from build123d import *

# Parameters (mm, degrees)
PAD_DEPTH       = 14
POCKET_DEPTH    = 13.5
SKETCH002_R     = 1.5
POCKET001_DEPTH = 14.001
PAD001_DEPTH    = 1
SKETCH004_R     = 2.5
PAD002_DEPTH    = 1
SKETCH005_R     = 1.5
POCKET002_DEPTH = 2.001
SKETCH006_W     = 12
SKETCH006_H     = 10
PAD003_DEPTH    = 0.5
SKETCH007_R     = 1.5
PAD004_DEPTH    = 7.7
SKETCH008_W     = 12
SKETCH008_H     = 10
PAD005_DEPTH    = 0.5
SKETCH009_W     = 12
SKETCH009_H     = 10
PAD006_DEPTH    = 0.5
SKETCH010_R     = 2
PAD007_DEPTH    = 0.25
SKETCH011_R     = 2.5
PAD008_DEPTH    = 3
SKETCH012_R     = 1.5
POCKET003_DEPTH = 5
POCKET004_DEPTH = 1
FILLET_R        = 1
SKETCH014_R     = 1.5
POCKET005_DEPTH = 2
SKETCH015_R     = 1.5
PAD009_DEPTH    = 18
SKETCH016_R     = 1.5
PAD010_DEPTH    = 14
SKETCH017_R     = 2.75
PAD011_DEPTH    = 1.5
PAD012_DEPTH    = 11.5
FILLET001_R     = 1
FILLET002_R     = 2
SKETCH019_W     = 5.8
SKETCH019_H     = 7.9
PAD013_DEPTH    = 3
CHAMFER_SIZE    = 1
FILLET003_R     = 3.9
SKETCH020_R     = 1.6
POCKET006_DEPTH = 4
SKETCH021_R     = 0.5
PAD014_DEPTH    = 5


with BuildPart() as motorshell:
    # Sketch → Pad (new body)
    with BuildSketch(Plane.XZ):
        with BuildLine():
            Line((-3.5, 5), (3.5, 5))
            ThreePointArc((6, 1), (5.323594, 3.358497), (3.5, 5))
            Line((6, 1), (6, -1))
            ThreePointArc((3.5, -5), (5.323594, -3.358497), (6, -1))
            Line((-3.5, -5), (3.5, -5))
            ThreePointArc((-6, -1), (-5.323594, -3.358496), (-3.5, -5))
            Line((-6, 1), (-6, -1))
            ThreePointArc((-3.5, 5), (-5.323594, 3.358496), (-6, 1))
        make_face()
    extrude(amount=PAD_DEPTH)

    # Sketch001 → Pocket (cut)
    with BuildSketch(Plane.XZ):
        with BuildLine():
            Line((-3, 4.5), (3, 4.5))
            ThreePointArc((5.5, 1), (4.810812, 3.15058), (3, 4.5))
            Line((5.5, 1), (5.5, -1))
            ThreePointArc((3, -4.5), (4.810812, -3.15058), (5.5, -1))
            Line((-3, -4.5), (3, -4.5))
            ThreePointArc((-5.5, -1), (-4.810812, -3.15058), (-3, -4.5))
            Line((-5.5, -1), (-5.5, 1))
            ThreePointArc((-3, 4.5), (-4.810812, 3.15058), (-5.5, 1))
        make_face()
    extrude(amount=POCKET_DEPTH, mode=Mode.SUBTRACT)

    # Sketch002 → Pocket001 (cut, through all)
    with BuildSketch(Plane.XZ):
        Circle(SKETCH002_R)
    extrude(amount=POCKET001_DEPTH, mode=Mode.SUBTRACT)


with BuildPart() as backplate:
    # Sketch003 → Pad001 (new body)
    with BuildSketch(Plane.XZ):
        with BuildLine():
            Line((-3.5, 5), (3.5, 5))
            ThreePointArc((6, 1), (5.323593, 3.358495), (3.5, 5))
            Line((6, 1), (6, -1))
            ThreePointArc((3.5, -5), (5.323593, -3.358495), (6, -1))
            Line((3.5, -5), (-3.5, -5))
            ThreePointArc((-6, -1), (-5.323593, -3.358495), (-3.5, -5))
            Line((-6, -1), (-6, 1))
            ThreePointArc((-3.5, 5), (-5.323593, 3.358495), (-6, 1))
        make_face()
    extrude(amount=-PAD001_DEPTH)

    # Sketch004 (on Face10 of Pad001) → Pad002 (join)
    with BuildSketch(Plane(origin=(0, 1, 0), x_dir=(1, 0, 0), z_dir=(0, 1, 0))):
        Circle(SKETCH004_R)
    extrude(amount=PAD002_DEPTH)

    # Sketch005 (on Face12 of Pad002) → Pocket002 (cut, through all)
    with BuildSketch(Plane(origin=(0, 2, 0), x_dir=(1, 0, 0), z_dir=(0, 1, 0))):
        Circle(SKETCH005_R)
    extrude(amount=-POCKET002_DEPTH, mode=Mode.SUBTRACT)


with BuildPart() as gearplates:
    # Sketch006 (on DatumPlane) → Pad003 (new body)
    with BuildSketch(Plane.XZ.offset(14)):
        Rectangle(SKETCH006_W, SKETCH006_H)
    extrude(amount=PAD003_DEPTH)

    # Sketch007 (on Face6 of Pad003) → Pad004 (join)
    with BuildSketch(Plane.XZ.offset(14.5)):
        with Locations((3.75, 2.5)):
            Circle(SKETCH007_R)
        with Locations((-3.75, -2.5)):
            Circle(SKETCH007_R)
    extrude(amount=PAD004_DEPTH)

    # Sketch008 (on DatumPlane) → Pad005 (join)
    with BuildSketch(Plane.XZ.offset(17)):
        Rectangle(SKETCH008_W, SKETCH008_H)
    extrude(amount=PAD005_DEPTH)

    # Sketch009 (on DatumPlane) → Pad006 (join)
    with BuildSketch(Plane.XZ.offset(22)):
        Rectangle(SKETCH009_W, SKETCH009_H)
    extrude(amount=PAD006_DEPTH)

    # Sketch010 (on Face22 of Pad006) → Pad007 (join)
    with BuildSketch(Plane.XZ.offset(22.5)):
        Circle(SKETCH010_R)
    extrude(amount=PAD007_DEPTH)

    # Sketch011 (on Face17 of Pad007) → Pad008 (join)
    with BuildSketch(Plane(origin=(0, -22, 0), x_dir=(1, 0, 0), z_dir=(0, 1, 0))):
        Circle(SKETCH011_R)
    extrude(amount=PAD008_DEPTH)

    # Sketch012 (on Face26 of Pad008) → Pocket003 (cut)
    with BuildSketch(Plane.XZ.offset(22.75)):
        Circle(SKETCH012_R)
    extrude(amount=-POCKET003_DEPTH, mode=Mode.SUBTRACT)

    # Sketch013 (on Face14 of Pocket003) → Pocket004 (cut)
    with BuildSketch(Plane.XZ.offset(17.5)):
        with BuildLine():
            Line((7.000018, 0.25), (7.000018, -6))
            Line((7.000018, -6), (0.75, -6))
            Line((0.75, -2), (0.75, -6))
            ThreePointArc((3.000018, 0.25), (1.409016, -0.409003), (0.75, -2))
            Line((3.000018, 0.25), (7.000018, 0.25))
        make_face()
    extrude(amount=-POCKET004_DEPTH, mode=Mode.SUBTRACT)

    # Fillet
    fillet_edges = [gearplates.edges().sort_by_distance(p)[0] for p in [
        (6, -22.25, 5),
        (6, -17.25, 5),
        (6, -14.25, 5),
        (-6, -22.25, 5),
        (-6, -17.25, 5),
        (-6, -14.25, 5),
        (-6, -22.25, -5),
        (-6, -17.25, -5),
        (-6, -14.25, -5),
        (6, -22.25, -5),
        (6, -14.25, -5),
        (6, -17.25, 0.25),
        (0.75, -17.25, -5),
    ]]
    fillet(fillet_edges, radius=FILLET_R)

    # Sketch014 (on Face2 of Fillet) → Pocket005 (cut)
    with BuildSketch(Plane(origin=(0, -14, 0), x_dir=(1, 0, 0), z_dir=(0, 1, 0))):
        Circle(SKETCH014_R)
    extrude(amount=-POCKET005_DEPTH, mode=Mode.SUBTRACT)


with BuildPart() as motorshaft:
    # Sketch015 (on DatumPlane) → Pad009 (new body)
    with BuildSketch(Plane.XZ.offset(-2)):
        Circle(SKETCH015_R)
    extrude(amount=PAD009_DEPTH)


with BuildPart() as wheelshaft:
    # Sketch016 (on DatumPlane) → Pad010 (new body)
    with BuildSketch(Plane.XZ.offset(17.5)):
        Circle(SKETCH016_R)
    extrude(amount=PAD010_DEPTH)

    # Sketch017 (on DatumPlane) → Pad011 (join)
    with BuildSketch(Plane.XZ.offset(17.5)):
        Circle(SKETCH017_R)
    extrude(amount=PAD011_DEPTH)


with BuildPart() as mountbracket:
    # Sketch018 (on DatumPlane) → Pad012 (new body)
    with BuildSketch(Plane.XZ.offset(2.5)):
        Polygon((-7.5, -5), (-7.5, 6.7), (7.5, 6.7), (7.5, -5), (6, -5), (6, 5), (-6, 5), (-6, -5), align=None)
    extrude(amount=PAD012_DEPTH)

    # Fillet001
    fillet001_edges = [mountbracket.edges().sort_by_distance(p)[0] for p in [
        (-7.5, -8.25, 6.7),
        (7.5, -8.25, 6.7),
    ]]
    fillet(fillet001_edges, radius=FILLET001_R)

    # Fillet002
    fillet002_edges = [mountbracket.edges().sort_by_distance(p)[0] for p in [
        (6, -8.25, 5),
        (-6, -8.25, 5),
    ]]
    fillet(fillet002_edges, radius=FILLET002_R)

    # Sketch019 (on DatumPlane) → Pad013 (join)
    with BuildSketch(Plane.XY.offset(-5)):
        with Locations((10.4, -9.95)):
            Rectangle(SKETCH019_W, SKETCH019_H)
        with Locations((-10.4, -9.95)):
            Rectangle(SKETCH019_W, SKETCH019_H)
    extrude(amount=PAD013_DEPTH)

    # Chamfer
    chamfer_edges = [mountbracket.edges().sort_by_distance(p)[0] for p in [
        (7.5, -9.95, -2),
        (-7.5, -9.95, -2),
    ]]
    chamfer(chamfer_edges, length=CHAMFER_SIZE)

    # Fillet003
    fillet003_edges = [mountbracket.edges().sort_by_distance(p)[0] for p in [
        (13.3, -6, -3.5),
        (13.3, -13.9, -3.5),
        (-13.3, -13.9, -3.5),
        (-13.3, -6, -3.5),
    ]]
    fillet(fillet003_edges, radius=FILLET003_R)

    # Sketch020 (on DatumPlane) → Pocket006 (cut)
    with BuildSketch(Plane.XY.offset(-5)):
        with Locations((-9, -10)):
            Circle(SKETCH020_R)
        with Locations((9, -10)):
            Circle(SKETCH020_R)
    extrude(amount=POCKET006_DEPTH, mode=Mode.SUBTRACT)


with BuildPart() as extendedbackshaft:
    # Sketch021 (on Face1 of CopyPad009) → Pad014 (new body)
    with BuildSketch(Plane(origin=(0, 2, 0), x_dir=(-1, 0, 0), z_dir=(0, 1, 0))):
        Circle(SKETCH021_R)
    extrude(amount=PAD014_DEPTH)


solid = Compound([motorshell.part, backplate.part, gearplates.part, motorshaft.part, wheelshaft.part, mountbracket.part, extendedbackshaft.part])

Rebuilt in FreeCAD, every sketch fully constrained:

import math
import FreeCAD as App
import Part
import Sketcher
Q = App.Units.Quantity


def edges_at(feature, points):
    """Names of the edges that pass closest to the given points."""
    edges = feature.Shape.Edges
    near = lambda p: min(range(len(edges)), key=lambda i: edges[i].distToShape(Part.Vertex(*p))[0])
    return sorted({f"Edge{near(p) + 1}" for p in points})


def add_polygon(sketch, points):
    """Adds a closed chain of lines whose ends are joined by coincident constraints."""
    first, n = sketch.GeometryCount, len(points)
    for a, b in zip(points, points[1:] + points[:1]):
        sketch.addGeometry(Part.LineSegment(App.Vector(*a, 0), App.Vector(*b, 0)), False)
    for i in range(n):
        sketch.addConstraint(Sketcher.Constraint("Coincident", first + i, 2, first + (i + 1) % n, 1))

doc = App.newDocument("Part")
params = doc.addObject("Spreadsheet::Sheet", "Params")
for row, (alias, value) in enumerate([
    ("sketch1_width", "7 mm"),
    ("sketch1_height", "2 mm"),
    ("pad1_length", "14 mm"),
    ("sketch2_width", "6 mm"),
    ("sketch2_height", "2 mm"),
    ("pocket1_length", "13.5 mm"),
    ("sketch3_diameter", "3 mm"),
    ("sketch4_width", "7 mm"),
    ("sketch4_height", "2 mm"),
    ("sketch4_radius", "4.449998 mm"),
    ("pad2_length", "1 mm"),
    ("sketch5_diameter", "5 mm"),
    ("pad3_length", "1 mm"),
    ("sketch6_diameter", "3 mm"),
    ("sketch7_width", "12 mm"),
    ("sketch7_height", "10 mm"),
    ("pad4_length", "0.5 mm"),
    ("sketch8_diameter", "3 mm"),
    ("pad5_length", "7.7 mm"),
    ("sketch9_width", "12 mm"),
    ("sketch9_height", "10 mm"),
    ("pad6_length", "0.5 mm"),
    ("sketch10_width", "12 mm"),
    ("sketch10_height", "10 mm"),
    ("pad7_length", "0.5 mm"),
    ("sketch11_diameter", "4 mm"),
    ("pad8_length", "0.25 mm"),
    ("sketch12_diameter", "5 mm"),
    ("pad9_length", "3 mm"),
    ("sketch13_diameter", "3 mm"),
    ("pocket4_length", "5 mm"),
    ("sketch14_width", "4 mm"),
    ("sketch14_radius", "2.249999 mm"),
    ("pocket5_length", "1 mm"),
    ("fillet_radius", "1 mm"),
    ("sketch15_diameter", "3 mm"),
    ("pocket6_length", "2 mm"),
    ("sketch16_diameter", "3 mm"),
    ("pad10_length", "18 mm"),
    ("sketch17_diameter", "3 mm"),
    ("pad11_length", "14 mm"),
    ("sketch18_diameter", "5.5 mm"),
    ("pad12_length", "1.5 mm"),
    ("sketch19_width", "12 mm"),
    ("sketch19_width2", "15 mm"),
    ("sketch19_height", "10 mm"),
    ("sketch19_height2", "11.7 mm"),
    ("pad13_length", "11.5 mm"),
    ("fillet2_radius", "1 mm"),
    ("fillet3_radius", "2 mm"),
    ("sketch20_width", "5.8 mm"),
    ("sketch20_height", "7.9 mm"),
    ("pad14_length", "3 mm"),
    ("chamfer_size", "1 mm"),
    ("fillet4_radius", "3.9 mm"),
    ("sketch21_diameter", "3.2 mm"),
    ("pocket7_length", "4 mm"),
    ("sketch22_diameter", "1 mm"),
    ("pad15_length", "5 mm"),
], start=1):
    params.set(f"A{row}", alias)
    params.set(f"B{row}", "=" + value)
    params.setAlias(f"B{row}", alias)

body = doc.addObject("PartDesign::Body", "Body")

# Sketch on XZ plane
sketch1 = doc.addObject("Sketcher::SketchObject", "Sketch")
body.addObject(sketch1)
sketch1.AttachmentSupport = (doc.XZ_Plane, [""])
sketch1.MapMode = "FlatFace"
sketch1.addGeometry([
    Part.LineSegment(App.Vector(3.5, 5, 0), App.Vector(-3.5, 5, 0)),  # 0
    Part.ArcOfCircle(Part.Circle(App.Vector(-1.550009, 1.000006, 0), App.Vector(0, 0, 1), 4.449991), math.radians(115.989158), math.radians(180.000076)),  # 1
    Part.LineSegment(App.Vector(-6, 1, 0), App.Vector(-6, -1, 0)),  # 2
    Part.ArcOfCircle(Part.Circle(App.Vector(-1.550009, -1.000006, 0), App.Vector(0, 0, 1), 4.449991), math.radians(179.999924), math.radians(244.010842)),  # 3
    Part.LineSegment(App.Vector(-3.5, -5, 0), App.Vector(3.5, -5, 0)),  # 4
    Part.ArcOfCircle(Part.Circle(App.Vector(1.550012, -1.000008, 0), App.Vector(0, 0, 1), 4.449988), math.radians(-64.010866), math.radians(0.0001)),  # 5
    Part.LineSegment(App.Vector(6, -1, 0), App.Vector(6, 1, 0)),  # 6
    Part.ArcOfCircle(Part.Circle(App.Vector(1.550012, 1.000008, 0), App.Vector(0, 0, 1), 4.449988), math.radians(-0.0001), math.radians(64.010866)),  # 7
], False)
sketch1.addConstraint([
    Sketcher.Constraint("Coincident", 0, 2, 1, 1),
    Sketcher.Constraint("Tangent", 1, 2, 2, 1),
    Sketcher.Constraint("Tangent", 2, 2, 3, 1),
    Sketcher.Constraint("Coincident", 3, 2, 4, 1),
    Sketcher.Constraint("Coincident", 4, 2, 5, 1),
    Sketcher.Constraint("Tangent", 5, 2, 6, 1),
    Sketcher.Constraint("Tangent", 6, 2, 7, 1),
    Sketcher.Constraint("Coincident", 7, 2, 0, 1),
    Sketcher.Constraint("Horizontal", 0),
    Sketcher.Constraint("Vertical", 2),
    Sketcher.Constraint("Horizontal", 4),
    Sketcher.Constraint("Vertical", 6),
    Sketcher.Constraint("Equal", 1, 3),
    Sketcher.Constraint("Equal", 5, 7),
    Sketcher.Constraint("Symmetric", 1, 3, 5, 3, -1, 1),
    Sketcher.Constraint("Symmetric", 0, 2, 4, 2, -1, 1),
    Sketcher.Constraint("Horizontal", 3, 3, 5, 3),
    Sketcher.Constraint("Horizontal", 1, 3, 7, 3),
    Sketcher.Constraint("DistanceX", 0, 2, 0, 1, Q("7 mm")),
    Sketcher.Constraint("DistanceY", 2, 2, 2, 1, Q("2 mm")),
    Sketcher.Constraint("DistanceY", -1, 1, 0, 2, Q("5 mm")),
    Sketcher.Constraint("DistanceX", 1, 2, -1, 1, Q("6 mm")),
])
sketch1.setExpression("Constraints[18]", "Params.sketch1_width")
sketch1.setExpression("Constraints[19]", "Params.sketch1_height")
pad1 = doc.addObject("PartDesign::Pad", "Pad")
body.addObject(pad1)
pad1.Profile = sketch1
pad1.setExpression("Length", "Params.pad1_length")

# Sketch on XZ plane
sketch2 = doc.addObject("Sketcher::SketchObject", "Sketch001")
body.addObject(sketch2)
sketch2.AttachmentSupport = (doc.XZ_Plane, [""])
sketch2.MapMode = "FlatFace"
sketch2.addGeometry([
    Part.LineSegment(App.Vector(3, 4.5, 0), App.Vector(-3, 4.5, 0)),  # 0
    Part.ArcOfCircle(Part.Circle(App.Vector(-1.79999, 0.999993, 0), App.Vector(0, 0, 1), 3.70001), math.radians(108.924754), math.radians(179.999891)),  # 1
    Part.LineSegment(App.Vector(-5.5, 1, 0), App.Vector(-5.5, -1, 0)),  # 2
    Part.ArcOfCircle(Part.Circle(App.Vector(-1.79999, -0.999993, 0), App.Vector(0, 0, 1), 3.70001), math.radians(-179.999891), math.radians(-108.924754)),  # 3
    Part.LineSegment(App.Vector(-3, -4.5, 0), App.Vector(3, -4.5, 0)),  # 4
    Part.ArcOfCircle(Part.Circle(App.Vector(1.79999, -0.999993, 0), App.Vector(0, 0, 1), 3.70001), math.radians(-71.075246), math.radians(-0.000109)),  # 5
    Part.LineSegment(App.Vector(5.5, -1, 0), App.Vector(5.5, 1, 0)),  # 6
    Part.ArcOfCircle(Part.Circle(App.Vector(1.79999, 0.999993, 0), App.Vector(0, 0, 1), 3.70001), math.radians(0.000109), math.radians(71.075246)),  # 7
], False)
sketch2.addConstraint([
    Sketcher.Constraint("Coincident", 0, 2, 1, 1),
    Sketcher.Constraint("Tangent", 1, 2, 2, 1),
    Sketcher.Constraint("Tangent", 2, 2, 3, 1),
    Sketcher.Constraint("Coincident", 3, 2, 4, 1),
    Sketcher.Constraint("Coincident", 4, 2, 5, 1),
    Sketcher.Constraint("Tangent", 5, 2, 6, 1),
    Sketcher.Constraint("Tangent", 6, 2, 7, 1),
    Sketcher.Constraint("Coincident", 7, 2, 0, 1),
    Sketcher.Constraint("Horizontal", 0),
    Sketcher.Constraint("Vertical", 2),
    Sketcher.Constraint("Horizontal", 4),
    Sketcher.Constraint("Vertical", 6),
    Sketcher.Constraint("Equal", 1, 3),
    Sketcher.Constraint("Equal", 3, 5),
    Sketcher.Constraint("Equal", 5, 7),
    Sketcher.Constraint("Symmetric", 1, 3, 5, 3, -1, 1),
    Sketcher.Constraint("Symmetric", 3, 2, 7, 2, -1, 1),
    Sketcher.Constraint("Horizontal", 3, 3, 5, 3),
    Sketcher.Constraint("DistanceX", 0, 2, 0, 1, Q("6 mm")),
    Sketcher.Constraint("DistanceY", 2, 2, 2, 1, Q("2 mm")),
    Sketcher.Constraint("DistanceY", -1, 1, 0, 2, Q("4.5 mm")),
    Sketcher.Constraint("DistanceX", 1, 2, -1, 1, Q("5.5 mm")),
])
sketch2.setExpression("Constraints[18]", "Params.sketch2_width")
sketch2.setExpression("Constraints[19]", "Params.sketch2_height")
pocket1 = doc.addObject("PartDesign::Pocket", "Pocket")
body.addObject(pocket1)
pocket1.Profile = sketch2
pocket1.setExpression("Length", "Params.pocket1_length")
pocket1.Reversed = True

# Sketch on XZ plane
sketch3 = doc.addObject("Sketcher::SketchObject", "Sketch002")
body.addObject(sketch3)
sketch3.AttachmentSupport = (doc.XZ_Plane, [""])
sketch3.MapMode = "FlatFace"
sketch3.addGeometry(Part.Circle(App.Vector(0, 0, 0), App.Vector(0, 0, 1), 1.5), False)
sketch3.addConstraint([
    Sketcher.Constraint("Coincident", 0, 3, -1, 1),
    Sketcher.Constraint("Diameter", 0, Q("3 mm")),
])
sketch3.setExpression("Constraints[1]", "Params.sketch3_diameter")
pocket2 = doc.addObject("PartDesign::Pocket", "Pocket001")
body.addObject(pocket2)
pocket2.Profile = sketch3
pocket2.Type = "ThroughAll"
pocket2.Reversed = True
body2 = doc.addObject("PartDesign::Body", "Body001")

# Sketch on XZ plane
sketch4 = doc.addObject("Sketcher::SketchObject", "Sketch003")
body2.addObject(sketch4)
sketch4.AttachmentSupport = (doc.getObject("XZ_Plane001"), [""])
sketch4.MapMode = "FlatFace"
sketch4.addGeometry([
    Part.LineSegment(App.Vector(3.5, 5, 0), App.Vector(-3.5, 5, 0)),  # 0
    Part.ArcOfCircle(Part.Circle(App.Vector(-1.550002, 1.000001, 0), App.Vector(0, 0, 1), 4.449998), math.radians(115.989219), math.radians(180.000014)),  # 1
    Part.LineSegment(App.Vector(-6, 1, 0), App.Vector(-6, -1, 0)),  # 2
    Part.ArcOfCircle(Part.Circle(App.Vector(-1.550002, -1.000001, 0), App.Vector(0, 0, 1), 4.449998), math.radians(179.999986), math.radians(244.010781)),  # 3
    Part.LineSegment(App.Vector(-3.5, -5, 0), App.Vector(3.5, -5, 0)),  # 4
    Part.ArcOfCircle(Part.Circle(App.Vector(1.550002, -1.000001, 0), App.Vector(0, 0, 1), 4.449998), math.radians(-64.010781), math.radians(0.000014)),  # 5
    Part.LineSegment(App.Vector(6, -1, 0), App.Vector(6, 1, 0)),  # 6
    Part.ArcOfCircle(Part.Circle(App.Vector(1.550002, 1.000001, 0), App.Vector(0, 0, 1), 4.449998), math.radians(-0.000014), math.radians(64.010781)),  # 7
], False)
sketch4.addConstraint([
    Sketcher.Constraint("Coincident", 0, 2, 1, 1),
    Sketcher.Constraint("Tangent", 1, 2, 2, 1),
    Sketcher.Constraint("Tangent", 2, 2, 3, 1),
    Sketcher.Constraint("Coincident", 3, 2, 4, 1),
    Sketcher.Constraint("Coincident", 4, 2, 5, 1),
    Sketcher.Constraint("Tangent", 5, 2, 6, 1),
    Sketcher.Constraint("Tangent", 6, 2, 7, 1),
    Sketcher.Constraint("Coincident", 7, 2, 0, 1),
    Sketcher.Constraint("Horizontal", 0),
    Sketcher.Constraint("Vertical", 2),
    Sketcher.Constraint("Horizontal", 4),
    Sketcher.Constraint("Vertical", 6),
    Sketcher.Constraint("Equal", 1, 3),
    Sketcher.Constraint("Equal", 3, 5),
    Sketcher.Constraint("Equal", 5, 7),
    Sketcher.Constraint("Symmetric", 1, 3, 5, 3, -1, 1),
    Sketcher.Constraint("Symmetric", 3, 2, 7, 2, -1, 1),
    Sketcher.Constraint("Horizontal", 3, 3, 5, 3),
    Sketcher.Constraint("DistanceX", 0, 2, 0, 1, Q("7 mm")),
    Sketcher.Constraint("DistanceY", 2, 2, 2, 1, Q("2 mm")),
    Sketcher.Constraint("Radius", 1, Q("4.449998 mm")),
    Sketcher.Constraint("DistanceY", -1, 1, 0, 2, Q("5 mm")),
])
sketch4.setExpression("Constraints[18]", "Params.sketch4_width")
sketch4.setExpression("Constraints[19]", "Params.sketch4_height")
sketch4.setExpression("Constraints[20]", "Params.sketch4_radius")
pad2 = doc.addObject("PartDesign::Pad", "Pad001")
body2.addObject(pad2)
pad2.Profile = sketch4
pad2.setExpression("Length", "Params.pad2_length")
pad2.Reversed = True

# Sketch on XZ plane
sketch5 = doc.addObject("Sketcher::SketchObject", "Sketch004")
body2.addObject(sketch5)
sketch5.AttachmentSupport = (doc.getObject("XZ_Plane001"), [""])
sketch5.MapMode = "FlatFace"
sketch5.AttachmentOffset = App.Placement(App.Vector(0, 0, -1), App.Rotation())
sketch5.addGeometry(Part.Circle(App.Vector(0, 0, 0), App.Vector(0, 0, 1), 2.5), False)
sketch5.addConstraint([
    Sketcher.Constraint("Coincident", 0, 3, -1, 1),
    Sketcher.Constraint("Diameter", 0, Q("5 mm")),
])
sketch5.setExpression("Constraints[1]", "Params.sketch5_diameter")
pad3 = doc.addObject("PartDesign::Pad", "Pad002")
body2.addObject(pad3)
pad3.Profile = sketch5
pad3.setExpression("Length", "Params.pad3_length")
pad3.Reversed = True

# Sketch on XZ plane
sketch6 = doc.addObject("Sketcher::SketchObject", "Sketch005")
body2.addObject(sketch6)
sketch6.AttachmentSupport = (doc.getObject("XZ_Plane001"), [""])
sketch6.MapMode = "FlatFace"
sketch6.AttachmentOffset = App.Placement(App.Vector(0, 0, -2), App.Rotation())
sketch6.addGeometry(Part.Circle(App.Vector(0, 0, 0), App.Vector(0, 0, 1), 1.5), False)
sketch6.addConstraint([
    Sketcher.Constraint("Coincident", 0, 3, -1, 1),
    Sketcher.Constraint("Diameter", 0, Q("3 mm")),
])
sketch6.setExpression("Constraints[1]", "Params.sketch6_diameter")
pocket3 = doc.addObject("PartDesign::Pocket", "Pocket002")
body2.addObject(pocket3)
pocket3.Profile = sketch6
pocket3.Type = "ThroughAll"
pocket3.Reversed = True
body3 = doc.addObject("PartDesign::Body", "Body002")

# Sketch on XZ plane
sketch7 = doc.addObject("Sketcher::SketchObject", "Sketch006")
body3.addObject(sketch7)
sketch7.AttachmentSupport = (doc.getObject("XZ_Plane002"), [""])
sketch7.MapMode = "FlatFace"
sketch7.AttachmentOffset = App.Placement(App.Vector(0, 0, 14), App.Rotation())
add_polygon(sketch7, [(-6, 5), (-6, -5), (6, -5), (6, 5)])  # lines 0-3
sketch7.addConstraint([
    Sketcher.Constraint("Vertical", 0),
    Sketcher.Constraint("Horizontal", 1),
    Sketcher.Constraint("Vertical", 2),
    Sketcher.Constraint("Horizontal", 3),
    Sketcher.Constraint("Symmetric", 0, 2, 2, 2, -1, 1),
    Sketcher.Constraint("DistanceX", 1, 1, 1, 2, Q("12 mm")),
    Sketcher.Constraint("DistanceY", 0, 2, 0, 1, Q("10 mm")),
])
sketch7.setExpression("Constraints[9]", "Params.sketch7_width")
sketch7.setExpression("Constraints[10]", "Params.sketch7_height")
pad4 = doc.addObject("PartDesign::Pad", "Pad003")
body3.addObject(pad4)
pad4.Profile = sketch7
pad4.setExpression("Length", "Params.pad4_length")

# Sketch on XZ plane
sketch8 = doc.addObject("Sketcher::SketchObject", "Sketch007")
body3.addObject(sketch8)
sketch8.AttachmentSupport = (doc.getObject("XZ_Plane002"), [""])
sketch8.MapMode = "FlatFace"
sketch8.AttachmentOffset = App.Placement(App.Vector(0, 0, 14.5), App.Rotation())
sketch8.addGeometry([
    Part.Circle(App.Vector(3.75, 2.5, 0), App.Vector(0, 0, 1), 1.5),
    Part.Circle(App.Vector(-3.75, -2.5, 0), App.Vector(0, 0, 1), 1.5),
], False)
sketch8.addConstraint([
    Sketcher.Constraint("Equal", 0, 1),
    Sketcher.Constraint("Symmetric", 0, 3, 1, 3, -1, 1),
    Sketcher.Constraint("Diameter", 0, Q("3 mm")),
    Sketcher.Constraint("DistanceY", 1, 3, 0, 3, Q("5 mm")),
    Sketcher.Constraint("DistanceX", 1, 3, 0, 3, Q("7.5 mm")),
])
sketch8.setExpression("Constraints[2]", "Params.sketch8_diameter")
pad5 = doc.addObject("PartDesign::Pad", "Pad004")
body3.addObject(pad5)
pad5.Profile = sketch8
pad5.setExpression("Length", "Params.pad5_length")

# Sketch on XZ plane
sketch9 = doc.addObject("Sketcher::SketchObject", "Sketch008")
body3.addObject(sketch9)
sketch9.AttachmentSupport = (doc.getObject("XZ_Plane002"), [""])
sketch9.MapMode = "FlatFace"
sketch9.AttachmentOffset = App.Placement(App.Vector(0, 0, 17), App.Rotation())
add_polygon(sketch9, [(-6, 5), (-6, -5), (6, -5), (6, 5)])  # lines 0-3
sketch9.addConstraint([
    Sketcher.Constraint("Vertical", 0),
    Sketcher.Constraint("Horizontal", 1),
    Sketcher.Constraint("Vertical", 2),
    Sketcher.Constraint("Horizontal", 3),
    Sketcher.Constraint("Symmetric", 0, 2, 2, 2, -1, 1),
    Sketcher.Constraint("DistanceX", 1, 1, 1, 2, Q("12 mm")),
    Sketcher.Constraint("DistanceY", 0, 2, 0, 1, Q("10 mm")),
])
sketch9.setExpression("Constraints[9]", "Params.sketch9_width")
sketch9.setExpression("Constraints[10]", "Params.sketch9_height")
pad6 = doc.addObject("PartDesign::Pad", "Pad005")
body3.addObject(pad6)
pad6.Profile = sketch9
pad6.setExpression("Length", "Params.pad6_length")

# Sketch on XZ plane
sketch10 = doc.addObject("Sketcher::SketchObject", "Sketch009")
body3.addObject(sketch10)
sketch10.AttachmentSupport = (doc.getObject("XZ_Plane002"), [""])
sketch10.MapMode = "FlatFace"
sketch10.AttachmentOffset = App.Placement(App.Vector(0, 0, 22), App.Rotation())
add_polygon(sketch10, [(-6, 5), (-6, -5), (6, -5), (6, 5)])  # lines 0-3
sketch10.addConstraint([
    Sketcher.Constraint("Vertical", 0),
    Sketcher.Constraint("Horizontal", 1),
    Sketcher.Constraint("Vertical", 2),
    Sketcher.Constraint("Horizontal", 3),
    Sketcher.Constraint("Symmetric", 0, 2, 2, 2, -1, 1),
    Sketcher.Constraint("DistanceX", 1, 1, 1, 2, Q("12 mm")),
    Sketcher.Constraint("DistanceY", 0, 2, 0, 1, Q("10 mm")),
])
sketch10.setExpression("Constraints[9]", "Params.sketch10_width")
sketch10.setExpression("Constraints[10]", "Params.sketch10_height")
pad7 = doc.addObject("PartDesign::Pad", "Pad006")
body3.addObject(pad7)
pad7.Profile = sketch10
pad7.setExpression("Length", "Params.pad7_length")

# Sketch on XZ plane
sketch11 = doc.addObject("Sketcher::SketchObject", "Sketch010")
body3.addObject(sketch11)
sketch11.AttachmentSupport = (doc.getObject("XZ_Plane002"), [""])
sketch11.MapMode = "FlatFace"
sketch11.AttachmentOffset = App.Placement(App.Vector(0, 0, 22.5), App.Rotation())
sketch11.addGeometry(Part.Circle(App.Vector(0, 0, 0), App.Vector(0, 0, 1), 2), False)
sketch11.addConstraint([
    Sketcher.Constraint("Coincident", 0, 3, -1, 1),
    Sketcher.Constraint("Diameter", 0, Q("4 mm")),
])
sketch11.setExpression("Constraints[1]", "Params.sketch11_diameter")
pad8 = doc.addObject("PartDesign::Pad", "Pad007")
body3.addObject(pad8)
pad8.Profile = sketch11
pad8.setExpression("Length", "Params.pad8_length")

# Sketch on XZ plane
sketch12 = doc.addObject("Sketcher::SketchObject", "Sketch011")
body3.addObject(sketch12)
sketch12.AttachmentSupport = (doc.getObject("XZ_Plane002"), [""])
sketch12.MapMode = "FlatFace"
sketch12.AttachmentOffset = App.Placement(App.Vector(0, 0, 22), App.Rotation())
sketch12.addGeometry(Part.Circle(App.Vector(0, 0, 0), App.Vector(0, 0, 1), 2.5), False)
sketch12.addConstraint([
    Sketcher.Constraint("Coincident", 0, 3, -1, 1),
    Sketcher.Constraint("Diameter", 0, Q("5 mm")),
])
sketch12.setExpression("Constraints[1]", "Params.sketch12_diameter")
pad9 = doc.addObject("PartDesign::Pad", "Pad008")
body3.addObject(pad9)
pad9.Profile = sketch12
pad9.setExpression("Length", "Params.pad9_length")
pad9.Reversed = True

# Sketch on XZ plane
sketch13 = doc.addObject("Sketcher::SketchObject", "Sketch012")
body3.addObject(sketch13)
sketch13.AttachmentSupport = (doc.getObject("XZ_Plane002"), [""])
sketch13.MapMode = "FlatFace"
sketch13.AttachmentOffset = App.Placement(App.Vector(0, 0, 22.75), App.Rotation())
sketch13.addGeometry(Part.Circle(App.Vector(0, 0, 0), App.Vector(0, 0, 1), 1.5), False)
sketch13.addConstraint([
    Sketcher.Constraint("Coincident", 0, 3, -1, 1),
    Sketcher.Constraint("Diameter", 0, Q("3 mm")),
])
sketch13.setExpression("Constraints[1]", "Params.sketch13_diameter")
pocket4 = doc.addObject("PartDesign::Pocket", "Pocket003")
body3.addObject(pocket4)
pocket4.Profile = sketch13
pocket4.setExpression("Length", "Params.pocket4_length")

# Sketch on XZ plane
sketch14 = doc.addObject("Sketcher::SketchObject", "Sketch013")
body3.addObject(sketch14)
sketch14.AttachmentSupport = (doc.getObject("XZ_Plane002"), [""])
sketch14.MapMode = "FlatFace"
sketch14.AttachmentOffset = App.Placement(App.Vector(0, 0, 17.5), App.Rotation())
sketch14.addGeometry([
    Part.LineSegment(App.Vector(7.000018, -6, 0), App.Vector(7.000018, 0.25, 0)),  # 0
    Part.LineSegment(App.Vector(7.000018, 0.25, 0), App.Vector(3.000018, 0.25, 0)),  # 1
    Part.ArcOfCircle(Part.Circle(App.Vector(2.999999, -1.999999, 0), App.Vector(0, 0, 1), 2.249999), math.radians(89.999521), math.radians(180.000021)),  # 2
    Part.LineSegment(App.Vector(0.75, -2, 0), App.Vector(0.75, -6, 0)),  # 3
    Part.LineSegment(App.Vector(0.75, -6, 0), App.Vector(7.000018, -6, 0)),  # 4
], False)
sketch14.addConstraint([
    Sketcher.Constraint("Coincident", 0, 2, 1, 1),
    Sketcher.Constraint("Coincident", 1, 2, 2, 1),
    Sketcher.Constraint("Tangent", 2, 2, 3, 1),
    Sketcher.Constraint("Coincident", 3, 2, 4, 1),
    Sketcher.Constraint("Coincident", 4, 2, 0, 1),
    Sketcher.Constraint("Vertical", 0),
    Sketcher.Constraint("Horizontal", 1),
    Sketcher.Constraint("Vertical", 3),
    Sketcher.Constraint("Horizontal", 4),
    Sketcher.Constraint("Equal", 1, 3),
    Sketcher.Constraint("DistanceX", 1, 2, 1, 1, Q("4 mm")),
    Sketcher.Constraint("Radius", 2, Q("2.249999 mm")),
    Sketcher.Constraint("DistanceX", -1, 1, 2, 3, Q("2.999999 mm")),
    Sketcher.Constraint("DistanceY", 2, 3, -1, 1, Q("1.999999 mm")),
    Sketcher.Constraint("DistanceX", 4, 1, 4, 2, Q("6.250018 mm")),
])
sketch14.setExpression("Constraints[10]", "Params.sketch14_width")
sketch14.setExpression("Constraints[11]", "Params.sketch14_radius")
pocket5 = doc.addObject("PartDesign::Pocket", "Pocket004")
body3.addObject(pocket5)
pocket5.Profile = sketch14
pocket5.setExpression("Length", "Params.pocket5_length")
doc.recompute()

fillet = doc.addObject("PartDesign::Fillet", "Fillet")
body3.addObject(fillet)
fillet.Base = (pocket5, edges_at(pocket5, [
    (6, -22.25, 5),
    (6, -17.25, 5),
    (6, -14.25, 5),
    (-6, -22.25, 5),
    (-6, -17.25, 5),
    (-6, -14.25, 5),
    (-6, -22.25, -5),
    (-6, -17.25, -5),
    (-6, -14.25, -5),
    (6, -22.25, -5),
    (6, -14.25, -5),
    (6, -17.25, 0.25),
    (0.75, -17.25, -5),
]))
fillet.setExpression("Radius", "Params.fillet_radius")

# Sketch on XZ plane
sketch15 = doc.addObject("Sketcher::SketchObject", "Sketch014")
body3.addObject(sketch15)
sketch15.AttachmentSupport = (doc.getObject("XZ_Plane002"), [""])
sketch15.MapMode = "FlatFace"
sketch15.AttachmentOffset = App.Placement(App.Vector(0, 0, 14), App.Rotation())
sketch15.addGeometry(Part.Circle(App.Vector(0, 0, 0), App.Vector(0, 0, 1), 1.5), False)
sketch15.addConstraint([
    Sketcher.Constraint("Coincident", 0, 3, -1, 1),
    Sketcher.Constraint("Diameter", 0, Q("3 mm")),
])
sketch15.setExpression("Constraints[1]", "Params.sketch15_diameter")
pocket6 = doc.addObject("PartDesign::Pocket", "Pocket005")
body3.addObject(pocket6)
pocket6.Profile = sketch15
pocket6.setExpression("Length", "Params.pocket6_length")
pocket6.Reversed = True
body4 = doc.addObject("PartDesign::Body", "Body003")

# Sketch on XZ plane
sketch16 = doc.addObject("Sketcher::SketchObject", "Sketch015")
body4.addObject(sketch16)
sketch16.AttachmentSupport = (doc.getObject("XZ_Plane003"), [""])
sketch16.MapMode = "FlatFace"
sketch16.AttachmentOffset = App.Placement(App.Vector(0, 0, -2), App.Rotation())
sketch16.addGeometry(Part.Circle(App.Vector(0, 0, 0), App.Vector(0, 0, 1), 1.5), False)
sketch16.addConstraint([
    Sketcher.Constraint("Coincident", 0, 3, -1, 1),
    Sketcher.Constraint("Diameter", 0, Q("3 mm")),
])
sketch16.setExpression("Constraints[1]", "Params.sketch16_diameter")
pad10 = doc.addObject("PartDesign::Pad", "Pad009")
body4.addObject(pad10)
pad10.Profile = sketch16
pad10.setExpression("Length", "Params.pad10_length")
body5 = doc.addObject("PartDesign::Body", "Body004")

# Sketch on XZ plane
sketch17 = doc.addObject("Sketcher::SketchObject", "Sketch016")
body5.addObject(sketch17)
sketch17.AttachmentSupport = (doc.getObject("XZ_Plane004"), [""])
sketch17.MapMode = "FlatFace"
sketch17.AttachmentOffset = App.Placement(App.Vector(0, 0, 17.5), App.Rotation())
sketch17.addGeometry(Part.Circle(App.Vector(0, 0, 0), App.Vector(0, 0, 1), 1.5), False)
sketch17.addConstraint([
    Sketcher.Constraint("Coincident", 0, 3, -1, 1),
    Sketcher.Constraint("Diameter", 0, Q("3 mm")),
])
sketch17.setExpression("Constraints[1]", "Params.sketch17_diameter")
pad11 = doc.addObject("PartDesign::Pad", "Pad010")
body5.addObject(pad11)
pad11.Profile = sketch17
pad11.setExpression("Length", "Params.pad11_length")

# Sketch on XZ plane
sketch18 = doc.addObject("Sketcher::SketchObject", "Sketch017")
body5.addObject(sketch18)
sketch18.AttachmentSupport = (doc.getObject("XZ_Plane004"), [""])
sketch18.MapMode = "FlatFace"
sketch18.AttachmentOffset = App.Placement(App.Vector(0, 0, 17.5), App.Rotation())
sketch18.addGeometry(Part.Circle(App.Vector(0, 0, 0), App.Vector(0, 0, 1), 2.75), False)
sketch18.addConstraint([
    Sketcher.Constraint("Coincident", 0, 3, -1, 1),
    Sketcher.Constraint("Diameter", 0, Q("5.5 mm")),
])
sketch18.setExpression("Constraints[1]", "Params.sketch18_diameter")
pad12 = doc.addObject("PartDesign::Pad", "Pad011")
body5.addObject(pad12)
pad12.Profile = sketch18
pad12.setExpression("Length", "Params.pad12_length")
body6 = doc.addObject("PartDesign::Body", "Body005")

# Sketch on XZ plane
sketch19 = doc.addObject("Sketcher::SketchObject", "Sketch018")
body6.addObject(sketch19)
sketch19.AttachmentSupport = (doc.getObject("XZ_Plane005"), [""])
sketch19.MapMode = "FlatFace"
sketch19.AttachmentOffset = App.Placement(App.Vector(0, 0, 2.5), App.Rotation())
add_polygon(sketch19, [(-7.5, 6.7), (-7.5, -5), (-6, -5), (-6, 5), (6, 5), (6, -5), (7.5, -5), (7.5, 6.7)])  # lines 0-7
sketch19.addConstraint([
    Sketcher.Constraint("Vertical", 0),
    Sketcher.Constraint("Horizontal", 1),
    Sketcher.Constraint("Vertical", 2),
    Sketcher.Constraint("Horizontal", 3),
    Sketcher.Constraint("Vertical", 4),
    Sketcher.Constraint("Horizontal", 5),
    Sketcher.Constraint("Vertical", 6),
    Sketcher.Constraint("Horizontal", 7),
    Sketcher.Constraint("Symmetric", 1, 2, 3, 2, -1, 1),
    Sketcher.Constraint("Symmetric", 0, 2, 5, 2, -2),
    Sketcher.Constraint("DistanceX", 3, 1, 3, 2, Q("12 mm")),
    Sketcher.Constraint("DistanceX", 7, 2, 7, 1, Q("15 mm")),
    Sketcher.Constraint("DistanceY", 2, 1, 2, 2, Q("10 mm")),
    Sketcher.Constraint("DistanceY", 0, 2, 0, 1, Q("11.7 mm")),
])
sketch19.setExpression("Constraints[18]", "Params.sketch19_width")
sketch19.setExpression("Constraints[19]", "Params.sketch19_width2")
sketch19.setExpression("Constraints[20]", "Params.sketch19_height")
sketch19.setExpression("Constraints[21]", "Params.sketch19_height2")
pad13 = doc.addObject("PartDesign::Pad", "Pad012")
body6.addObject(pad13)
pad13.Profile = sketch19
pad13.setExpression("Length", "Params.pad13_length")
doc.recompute()

fillet2 = doc.addObject("PartDesign::Fillet", "Fillet001")
body6.addObject(fillet2)
fillet2.Base = (pad13, edges_at(pad13, [(-7.5, -8.25, 6.7), (7.5, -8.25, 6.7)]))
fillet2.setExpression("Radius", "Params.fillet2_radius")
doc.recompute()

fillet3 = doc.addObject("PartDesign::Fillet", "Fillet002")
body6.addObject(fillet3)
fillet3.Base = (fillet2, edges_at(fillet2, [(6, -8.25, 5), (-6, -8.25, 5)]))
fillet3.setExpression("Radius", "Params.fillet3_radius")

# Sketch on XY plane
sketch20 = doc.addObject("Sketcher::SketchObject", "Sketch019")
body6.addObject(sketch20)
sketch20.AttachmentSupport = (doc.getObject("XY_Plane005"), [""])
sketch20.MapMode = "FlatFace"
sketch20.AttachmentOffset = App.Placement(App.Vector(0, 0, -5), App.Rotation())
add_polygon(sketch20, [(7.5, -6), (7.5, -13.9), (13.3, -13.9), (13.3, -6)])  # lines 0-3
add_polygon(sketch20, [(-13.3, -6), (-13.3, -13.9), (-7.5, -13.9), (-7.5, -6)])  # lines 4-7
sketch20.addConstraint([
    Sketcher.Constraint("Vertical", 0),
    Sketcher.Constraint("Horizontal", 1),
    Sketcher.Constraint("Vertical", 2),
    Sketcher.Constraint("Horizontal", 3),
    Sketcher.Constraint("Vertical", 4),
    Sketcher.Constraint("Horizontal", 5),
    Sketcher.Constraint("Vertical", 6),
    Sketcher.Constraint("Horizontal", 7),
    Sketcher.Constraint("Symmetric", 1, 2, 4, 2, -2),
    Sketcher.Constraint("Symmetric", 3, 2, 6, 2, -2),
    Sketcher.Constraint("DistanceX", 1, 1, 1, 2, Q("5.8 mm")),
    Sketcher.Constraint("DistanceY", 0, 2, 0, 1, Q("7.9 mm")),
    Sketcher.Constraint("DistanceY", 2, 2, -1, 1, Q("6 mm")),
    Sketcher.Constraint("DistanceX", 5, 2, 0, 2, Q("15 mm")),
])
sketch20.setExpression("Constraints[18]", "Params.sketch20_width")
sketch20.setExpression("Constraints[19]", "Params.sketch20_height")
pad14 = doc.addObject("PartDesign::Pad", "Pad013")
body6.addObject(pad14)
pad14.Profile = sketch20
pad14.setExpression("Length", "Params.pad14_length")
doc.recompute()

chamfer = doc.addObject("PartDesign::Chamfer", "Chamfer")
body6.addObject(chamfer)
chamfer.Base = (pad14, edges_at(pad14, [(7.5, -9.95, -2), (-7.5, -9.95, -2)]))
chamfer.setExpression("Size", "Params.chamfer_size")
doc.recompute()

fillet4 = doc.addObject("PartDesign::Fillet", "Fillet003")
body6.addObject(fillet4)
fillet4.Base = (chamfer, edges_at(chamfer, [
    (13.3, -6, -3.5),
    (13.3, -13.9, -3.5),
    (-13.3, -13.9, -3.5),
    (-13.3, -6, -3.5),
]))
fillet4.setExpression("Radius", "Params.fillet4_radius")

# Sketch on XY plane
sketch21 = doc.addObject("Sketcher::SketchObject", "Sketch020")
body6.addObject(sketch21)
sketch21.AttachmentSupport = (doc.getObject("XY_Plane005"), [""])
sketch21.MapMode = "FlatFace"
sketch21.AttachmentOffset = App.Placement(App.Vector(0, 0, -5), App.Rotation())
sketch21.addGeometry([
    Part.Circle(App.Vector(-9, -10, 0), App.Vector(0, 0, 1), 1.6),
    Part.Circle(App.Vector(9, -10, 0), App.Vector(0, 0, 1), 1.6),
], False)
sketch21.addConstraint([
    Sketcher.Constraint("Equal", 0, 1),
    Sketcher.Constraint("Symmetric", 0, 3, 1, 3, -2),
    Sketcher.Constraint("Diameter", 0, Q("3.2 mm")),
    Sketcher.Constraint("DistanceX", 0, 3, -1, 1, Q("9 mm")),
    Sketcher.Constraint("DistanceY", 0, 3, -1, 1, Q("10 mm")),
])
sketch21.setExpression("Constraints[2]", "Params.sketch21_diameter")
pocket7 = doc.addObject("PartDesign::Pocket", "Pocket006")
body6.addObject(pocket7)
pocket7.Profile = sketch21
pocket7.setExpression("Length", "Params.pocket7_length")
pocket7.Reversed = True
body7 = doc.addObject("PartDesign::Body", "Body006")

# Sketch on XZ plane
sketch22 = doc.addObject("Sketcher::SketchObject", "Sketch021")
body7.addObject(sketch22)
sketch22.AttachmentSupport = (doc.getObject("XZ_Plane006"), [""])
sketch22.MapMode = "FlatFace"
sketch22.AttachmentOffset = App.Placement(App.Vector(0, 0, -2), App.Rotation())
sketch22.addGeometry(Part.Circle(App.Vector(0, 0, 0), App.Vector(0, 0, 1), 0.5), False)
sketch22.addConstraint([
    Sketcher.Constraint("Coincident", 0, 3, -1, 1),
    Sketcher.Constraint("Diameter", 0, Q("1 mm")),
])
sketch22.setExpression("Constraints[1]", "Params.sketch22_diameter")
pad15 = doc.addObject("PartDesign::Pad", "Pad014")
body7.addObject(pad15)
pad15.Profile = sketch22
pad15.setExpression("Length", "Params.pad15_length")
pad15.Reversed = True

doc.recompute()
